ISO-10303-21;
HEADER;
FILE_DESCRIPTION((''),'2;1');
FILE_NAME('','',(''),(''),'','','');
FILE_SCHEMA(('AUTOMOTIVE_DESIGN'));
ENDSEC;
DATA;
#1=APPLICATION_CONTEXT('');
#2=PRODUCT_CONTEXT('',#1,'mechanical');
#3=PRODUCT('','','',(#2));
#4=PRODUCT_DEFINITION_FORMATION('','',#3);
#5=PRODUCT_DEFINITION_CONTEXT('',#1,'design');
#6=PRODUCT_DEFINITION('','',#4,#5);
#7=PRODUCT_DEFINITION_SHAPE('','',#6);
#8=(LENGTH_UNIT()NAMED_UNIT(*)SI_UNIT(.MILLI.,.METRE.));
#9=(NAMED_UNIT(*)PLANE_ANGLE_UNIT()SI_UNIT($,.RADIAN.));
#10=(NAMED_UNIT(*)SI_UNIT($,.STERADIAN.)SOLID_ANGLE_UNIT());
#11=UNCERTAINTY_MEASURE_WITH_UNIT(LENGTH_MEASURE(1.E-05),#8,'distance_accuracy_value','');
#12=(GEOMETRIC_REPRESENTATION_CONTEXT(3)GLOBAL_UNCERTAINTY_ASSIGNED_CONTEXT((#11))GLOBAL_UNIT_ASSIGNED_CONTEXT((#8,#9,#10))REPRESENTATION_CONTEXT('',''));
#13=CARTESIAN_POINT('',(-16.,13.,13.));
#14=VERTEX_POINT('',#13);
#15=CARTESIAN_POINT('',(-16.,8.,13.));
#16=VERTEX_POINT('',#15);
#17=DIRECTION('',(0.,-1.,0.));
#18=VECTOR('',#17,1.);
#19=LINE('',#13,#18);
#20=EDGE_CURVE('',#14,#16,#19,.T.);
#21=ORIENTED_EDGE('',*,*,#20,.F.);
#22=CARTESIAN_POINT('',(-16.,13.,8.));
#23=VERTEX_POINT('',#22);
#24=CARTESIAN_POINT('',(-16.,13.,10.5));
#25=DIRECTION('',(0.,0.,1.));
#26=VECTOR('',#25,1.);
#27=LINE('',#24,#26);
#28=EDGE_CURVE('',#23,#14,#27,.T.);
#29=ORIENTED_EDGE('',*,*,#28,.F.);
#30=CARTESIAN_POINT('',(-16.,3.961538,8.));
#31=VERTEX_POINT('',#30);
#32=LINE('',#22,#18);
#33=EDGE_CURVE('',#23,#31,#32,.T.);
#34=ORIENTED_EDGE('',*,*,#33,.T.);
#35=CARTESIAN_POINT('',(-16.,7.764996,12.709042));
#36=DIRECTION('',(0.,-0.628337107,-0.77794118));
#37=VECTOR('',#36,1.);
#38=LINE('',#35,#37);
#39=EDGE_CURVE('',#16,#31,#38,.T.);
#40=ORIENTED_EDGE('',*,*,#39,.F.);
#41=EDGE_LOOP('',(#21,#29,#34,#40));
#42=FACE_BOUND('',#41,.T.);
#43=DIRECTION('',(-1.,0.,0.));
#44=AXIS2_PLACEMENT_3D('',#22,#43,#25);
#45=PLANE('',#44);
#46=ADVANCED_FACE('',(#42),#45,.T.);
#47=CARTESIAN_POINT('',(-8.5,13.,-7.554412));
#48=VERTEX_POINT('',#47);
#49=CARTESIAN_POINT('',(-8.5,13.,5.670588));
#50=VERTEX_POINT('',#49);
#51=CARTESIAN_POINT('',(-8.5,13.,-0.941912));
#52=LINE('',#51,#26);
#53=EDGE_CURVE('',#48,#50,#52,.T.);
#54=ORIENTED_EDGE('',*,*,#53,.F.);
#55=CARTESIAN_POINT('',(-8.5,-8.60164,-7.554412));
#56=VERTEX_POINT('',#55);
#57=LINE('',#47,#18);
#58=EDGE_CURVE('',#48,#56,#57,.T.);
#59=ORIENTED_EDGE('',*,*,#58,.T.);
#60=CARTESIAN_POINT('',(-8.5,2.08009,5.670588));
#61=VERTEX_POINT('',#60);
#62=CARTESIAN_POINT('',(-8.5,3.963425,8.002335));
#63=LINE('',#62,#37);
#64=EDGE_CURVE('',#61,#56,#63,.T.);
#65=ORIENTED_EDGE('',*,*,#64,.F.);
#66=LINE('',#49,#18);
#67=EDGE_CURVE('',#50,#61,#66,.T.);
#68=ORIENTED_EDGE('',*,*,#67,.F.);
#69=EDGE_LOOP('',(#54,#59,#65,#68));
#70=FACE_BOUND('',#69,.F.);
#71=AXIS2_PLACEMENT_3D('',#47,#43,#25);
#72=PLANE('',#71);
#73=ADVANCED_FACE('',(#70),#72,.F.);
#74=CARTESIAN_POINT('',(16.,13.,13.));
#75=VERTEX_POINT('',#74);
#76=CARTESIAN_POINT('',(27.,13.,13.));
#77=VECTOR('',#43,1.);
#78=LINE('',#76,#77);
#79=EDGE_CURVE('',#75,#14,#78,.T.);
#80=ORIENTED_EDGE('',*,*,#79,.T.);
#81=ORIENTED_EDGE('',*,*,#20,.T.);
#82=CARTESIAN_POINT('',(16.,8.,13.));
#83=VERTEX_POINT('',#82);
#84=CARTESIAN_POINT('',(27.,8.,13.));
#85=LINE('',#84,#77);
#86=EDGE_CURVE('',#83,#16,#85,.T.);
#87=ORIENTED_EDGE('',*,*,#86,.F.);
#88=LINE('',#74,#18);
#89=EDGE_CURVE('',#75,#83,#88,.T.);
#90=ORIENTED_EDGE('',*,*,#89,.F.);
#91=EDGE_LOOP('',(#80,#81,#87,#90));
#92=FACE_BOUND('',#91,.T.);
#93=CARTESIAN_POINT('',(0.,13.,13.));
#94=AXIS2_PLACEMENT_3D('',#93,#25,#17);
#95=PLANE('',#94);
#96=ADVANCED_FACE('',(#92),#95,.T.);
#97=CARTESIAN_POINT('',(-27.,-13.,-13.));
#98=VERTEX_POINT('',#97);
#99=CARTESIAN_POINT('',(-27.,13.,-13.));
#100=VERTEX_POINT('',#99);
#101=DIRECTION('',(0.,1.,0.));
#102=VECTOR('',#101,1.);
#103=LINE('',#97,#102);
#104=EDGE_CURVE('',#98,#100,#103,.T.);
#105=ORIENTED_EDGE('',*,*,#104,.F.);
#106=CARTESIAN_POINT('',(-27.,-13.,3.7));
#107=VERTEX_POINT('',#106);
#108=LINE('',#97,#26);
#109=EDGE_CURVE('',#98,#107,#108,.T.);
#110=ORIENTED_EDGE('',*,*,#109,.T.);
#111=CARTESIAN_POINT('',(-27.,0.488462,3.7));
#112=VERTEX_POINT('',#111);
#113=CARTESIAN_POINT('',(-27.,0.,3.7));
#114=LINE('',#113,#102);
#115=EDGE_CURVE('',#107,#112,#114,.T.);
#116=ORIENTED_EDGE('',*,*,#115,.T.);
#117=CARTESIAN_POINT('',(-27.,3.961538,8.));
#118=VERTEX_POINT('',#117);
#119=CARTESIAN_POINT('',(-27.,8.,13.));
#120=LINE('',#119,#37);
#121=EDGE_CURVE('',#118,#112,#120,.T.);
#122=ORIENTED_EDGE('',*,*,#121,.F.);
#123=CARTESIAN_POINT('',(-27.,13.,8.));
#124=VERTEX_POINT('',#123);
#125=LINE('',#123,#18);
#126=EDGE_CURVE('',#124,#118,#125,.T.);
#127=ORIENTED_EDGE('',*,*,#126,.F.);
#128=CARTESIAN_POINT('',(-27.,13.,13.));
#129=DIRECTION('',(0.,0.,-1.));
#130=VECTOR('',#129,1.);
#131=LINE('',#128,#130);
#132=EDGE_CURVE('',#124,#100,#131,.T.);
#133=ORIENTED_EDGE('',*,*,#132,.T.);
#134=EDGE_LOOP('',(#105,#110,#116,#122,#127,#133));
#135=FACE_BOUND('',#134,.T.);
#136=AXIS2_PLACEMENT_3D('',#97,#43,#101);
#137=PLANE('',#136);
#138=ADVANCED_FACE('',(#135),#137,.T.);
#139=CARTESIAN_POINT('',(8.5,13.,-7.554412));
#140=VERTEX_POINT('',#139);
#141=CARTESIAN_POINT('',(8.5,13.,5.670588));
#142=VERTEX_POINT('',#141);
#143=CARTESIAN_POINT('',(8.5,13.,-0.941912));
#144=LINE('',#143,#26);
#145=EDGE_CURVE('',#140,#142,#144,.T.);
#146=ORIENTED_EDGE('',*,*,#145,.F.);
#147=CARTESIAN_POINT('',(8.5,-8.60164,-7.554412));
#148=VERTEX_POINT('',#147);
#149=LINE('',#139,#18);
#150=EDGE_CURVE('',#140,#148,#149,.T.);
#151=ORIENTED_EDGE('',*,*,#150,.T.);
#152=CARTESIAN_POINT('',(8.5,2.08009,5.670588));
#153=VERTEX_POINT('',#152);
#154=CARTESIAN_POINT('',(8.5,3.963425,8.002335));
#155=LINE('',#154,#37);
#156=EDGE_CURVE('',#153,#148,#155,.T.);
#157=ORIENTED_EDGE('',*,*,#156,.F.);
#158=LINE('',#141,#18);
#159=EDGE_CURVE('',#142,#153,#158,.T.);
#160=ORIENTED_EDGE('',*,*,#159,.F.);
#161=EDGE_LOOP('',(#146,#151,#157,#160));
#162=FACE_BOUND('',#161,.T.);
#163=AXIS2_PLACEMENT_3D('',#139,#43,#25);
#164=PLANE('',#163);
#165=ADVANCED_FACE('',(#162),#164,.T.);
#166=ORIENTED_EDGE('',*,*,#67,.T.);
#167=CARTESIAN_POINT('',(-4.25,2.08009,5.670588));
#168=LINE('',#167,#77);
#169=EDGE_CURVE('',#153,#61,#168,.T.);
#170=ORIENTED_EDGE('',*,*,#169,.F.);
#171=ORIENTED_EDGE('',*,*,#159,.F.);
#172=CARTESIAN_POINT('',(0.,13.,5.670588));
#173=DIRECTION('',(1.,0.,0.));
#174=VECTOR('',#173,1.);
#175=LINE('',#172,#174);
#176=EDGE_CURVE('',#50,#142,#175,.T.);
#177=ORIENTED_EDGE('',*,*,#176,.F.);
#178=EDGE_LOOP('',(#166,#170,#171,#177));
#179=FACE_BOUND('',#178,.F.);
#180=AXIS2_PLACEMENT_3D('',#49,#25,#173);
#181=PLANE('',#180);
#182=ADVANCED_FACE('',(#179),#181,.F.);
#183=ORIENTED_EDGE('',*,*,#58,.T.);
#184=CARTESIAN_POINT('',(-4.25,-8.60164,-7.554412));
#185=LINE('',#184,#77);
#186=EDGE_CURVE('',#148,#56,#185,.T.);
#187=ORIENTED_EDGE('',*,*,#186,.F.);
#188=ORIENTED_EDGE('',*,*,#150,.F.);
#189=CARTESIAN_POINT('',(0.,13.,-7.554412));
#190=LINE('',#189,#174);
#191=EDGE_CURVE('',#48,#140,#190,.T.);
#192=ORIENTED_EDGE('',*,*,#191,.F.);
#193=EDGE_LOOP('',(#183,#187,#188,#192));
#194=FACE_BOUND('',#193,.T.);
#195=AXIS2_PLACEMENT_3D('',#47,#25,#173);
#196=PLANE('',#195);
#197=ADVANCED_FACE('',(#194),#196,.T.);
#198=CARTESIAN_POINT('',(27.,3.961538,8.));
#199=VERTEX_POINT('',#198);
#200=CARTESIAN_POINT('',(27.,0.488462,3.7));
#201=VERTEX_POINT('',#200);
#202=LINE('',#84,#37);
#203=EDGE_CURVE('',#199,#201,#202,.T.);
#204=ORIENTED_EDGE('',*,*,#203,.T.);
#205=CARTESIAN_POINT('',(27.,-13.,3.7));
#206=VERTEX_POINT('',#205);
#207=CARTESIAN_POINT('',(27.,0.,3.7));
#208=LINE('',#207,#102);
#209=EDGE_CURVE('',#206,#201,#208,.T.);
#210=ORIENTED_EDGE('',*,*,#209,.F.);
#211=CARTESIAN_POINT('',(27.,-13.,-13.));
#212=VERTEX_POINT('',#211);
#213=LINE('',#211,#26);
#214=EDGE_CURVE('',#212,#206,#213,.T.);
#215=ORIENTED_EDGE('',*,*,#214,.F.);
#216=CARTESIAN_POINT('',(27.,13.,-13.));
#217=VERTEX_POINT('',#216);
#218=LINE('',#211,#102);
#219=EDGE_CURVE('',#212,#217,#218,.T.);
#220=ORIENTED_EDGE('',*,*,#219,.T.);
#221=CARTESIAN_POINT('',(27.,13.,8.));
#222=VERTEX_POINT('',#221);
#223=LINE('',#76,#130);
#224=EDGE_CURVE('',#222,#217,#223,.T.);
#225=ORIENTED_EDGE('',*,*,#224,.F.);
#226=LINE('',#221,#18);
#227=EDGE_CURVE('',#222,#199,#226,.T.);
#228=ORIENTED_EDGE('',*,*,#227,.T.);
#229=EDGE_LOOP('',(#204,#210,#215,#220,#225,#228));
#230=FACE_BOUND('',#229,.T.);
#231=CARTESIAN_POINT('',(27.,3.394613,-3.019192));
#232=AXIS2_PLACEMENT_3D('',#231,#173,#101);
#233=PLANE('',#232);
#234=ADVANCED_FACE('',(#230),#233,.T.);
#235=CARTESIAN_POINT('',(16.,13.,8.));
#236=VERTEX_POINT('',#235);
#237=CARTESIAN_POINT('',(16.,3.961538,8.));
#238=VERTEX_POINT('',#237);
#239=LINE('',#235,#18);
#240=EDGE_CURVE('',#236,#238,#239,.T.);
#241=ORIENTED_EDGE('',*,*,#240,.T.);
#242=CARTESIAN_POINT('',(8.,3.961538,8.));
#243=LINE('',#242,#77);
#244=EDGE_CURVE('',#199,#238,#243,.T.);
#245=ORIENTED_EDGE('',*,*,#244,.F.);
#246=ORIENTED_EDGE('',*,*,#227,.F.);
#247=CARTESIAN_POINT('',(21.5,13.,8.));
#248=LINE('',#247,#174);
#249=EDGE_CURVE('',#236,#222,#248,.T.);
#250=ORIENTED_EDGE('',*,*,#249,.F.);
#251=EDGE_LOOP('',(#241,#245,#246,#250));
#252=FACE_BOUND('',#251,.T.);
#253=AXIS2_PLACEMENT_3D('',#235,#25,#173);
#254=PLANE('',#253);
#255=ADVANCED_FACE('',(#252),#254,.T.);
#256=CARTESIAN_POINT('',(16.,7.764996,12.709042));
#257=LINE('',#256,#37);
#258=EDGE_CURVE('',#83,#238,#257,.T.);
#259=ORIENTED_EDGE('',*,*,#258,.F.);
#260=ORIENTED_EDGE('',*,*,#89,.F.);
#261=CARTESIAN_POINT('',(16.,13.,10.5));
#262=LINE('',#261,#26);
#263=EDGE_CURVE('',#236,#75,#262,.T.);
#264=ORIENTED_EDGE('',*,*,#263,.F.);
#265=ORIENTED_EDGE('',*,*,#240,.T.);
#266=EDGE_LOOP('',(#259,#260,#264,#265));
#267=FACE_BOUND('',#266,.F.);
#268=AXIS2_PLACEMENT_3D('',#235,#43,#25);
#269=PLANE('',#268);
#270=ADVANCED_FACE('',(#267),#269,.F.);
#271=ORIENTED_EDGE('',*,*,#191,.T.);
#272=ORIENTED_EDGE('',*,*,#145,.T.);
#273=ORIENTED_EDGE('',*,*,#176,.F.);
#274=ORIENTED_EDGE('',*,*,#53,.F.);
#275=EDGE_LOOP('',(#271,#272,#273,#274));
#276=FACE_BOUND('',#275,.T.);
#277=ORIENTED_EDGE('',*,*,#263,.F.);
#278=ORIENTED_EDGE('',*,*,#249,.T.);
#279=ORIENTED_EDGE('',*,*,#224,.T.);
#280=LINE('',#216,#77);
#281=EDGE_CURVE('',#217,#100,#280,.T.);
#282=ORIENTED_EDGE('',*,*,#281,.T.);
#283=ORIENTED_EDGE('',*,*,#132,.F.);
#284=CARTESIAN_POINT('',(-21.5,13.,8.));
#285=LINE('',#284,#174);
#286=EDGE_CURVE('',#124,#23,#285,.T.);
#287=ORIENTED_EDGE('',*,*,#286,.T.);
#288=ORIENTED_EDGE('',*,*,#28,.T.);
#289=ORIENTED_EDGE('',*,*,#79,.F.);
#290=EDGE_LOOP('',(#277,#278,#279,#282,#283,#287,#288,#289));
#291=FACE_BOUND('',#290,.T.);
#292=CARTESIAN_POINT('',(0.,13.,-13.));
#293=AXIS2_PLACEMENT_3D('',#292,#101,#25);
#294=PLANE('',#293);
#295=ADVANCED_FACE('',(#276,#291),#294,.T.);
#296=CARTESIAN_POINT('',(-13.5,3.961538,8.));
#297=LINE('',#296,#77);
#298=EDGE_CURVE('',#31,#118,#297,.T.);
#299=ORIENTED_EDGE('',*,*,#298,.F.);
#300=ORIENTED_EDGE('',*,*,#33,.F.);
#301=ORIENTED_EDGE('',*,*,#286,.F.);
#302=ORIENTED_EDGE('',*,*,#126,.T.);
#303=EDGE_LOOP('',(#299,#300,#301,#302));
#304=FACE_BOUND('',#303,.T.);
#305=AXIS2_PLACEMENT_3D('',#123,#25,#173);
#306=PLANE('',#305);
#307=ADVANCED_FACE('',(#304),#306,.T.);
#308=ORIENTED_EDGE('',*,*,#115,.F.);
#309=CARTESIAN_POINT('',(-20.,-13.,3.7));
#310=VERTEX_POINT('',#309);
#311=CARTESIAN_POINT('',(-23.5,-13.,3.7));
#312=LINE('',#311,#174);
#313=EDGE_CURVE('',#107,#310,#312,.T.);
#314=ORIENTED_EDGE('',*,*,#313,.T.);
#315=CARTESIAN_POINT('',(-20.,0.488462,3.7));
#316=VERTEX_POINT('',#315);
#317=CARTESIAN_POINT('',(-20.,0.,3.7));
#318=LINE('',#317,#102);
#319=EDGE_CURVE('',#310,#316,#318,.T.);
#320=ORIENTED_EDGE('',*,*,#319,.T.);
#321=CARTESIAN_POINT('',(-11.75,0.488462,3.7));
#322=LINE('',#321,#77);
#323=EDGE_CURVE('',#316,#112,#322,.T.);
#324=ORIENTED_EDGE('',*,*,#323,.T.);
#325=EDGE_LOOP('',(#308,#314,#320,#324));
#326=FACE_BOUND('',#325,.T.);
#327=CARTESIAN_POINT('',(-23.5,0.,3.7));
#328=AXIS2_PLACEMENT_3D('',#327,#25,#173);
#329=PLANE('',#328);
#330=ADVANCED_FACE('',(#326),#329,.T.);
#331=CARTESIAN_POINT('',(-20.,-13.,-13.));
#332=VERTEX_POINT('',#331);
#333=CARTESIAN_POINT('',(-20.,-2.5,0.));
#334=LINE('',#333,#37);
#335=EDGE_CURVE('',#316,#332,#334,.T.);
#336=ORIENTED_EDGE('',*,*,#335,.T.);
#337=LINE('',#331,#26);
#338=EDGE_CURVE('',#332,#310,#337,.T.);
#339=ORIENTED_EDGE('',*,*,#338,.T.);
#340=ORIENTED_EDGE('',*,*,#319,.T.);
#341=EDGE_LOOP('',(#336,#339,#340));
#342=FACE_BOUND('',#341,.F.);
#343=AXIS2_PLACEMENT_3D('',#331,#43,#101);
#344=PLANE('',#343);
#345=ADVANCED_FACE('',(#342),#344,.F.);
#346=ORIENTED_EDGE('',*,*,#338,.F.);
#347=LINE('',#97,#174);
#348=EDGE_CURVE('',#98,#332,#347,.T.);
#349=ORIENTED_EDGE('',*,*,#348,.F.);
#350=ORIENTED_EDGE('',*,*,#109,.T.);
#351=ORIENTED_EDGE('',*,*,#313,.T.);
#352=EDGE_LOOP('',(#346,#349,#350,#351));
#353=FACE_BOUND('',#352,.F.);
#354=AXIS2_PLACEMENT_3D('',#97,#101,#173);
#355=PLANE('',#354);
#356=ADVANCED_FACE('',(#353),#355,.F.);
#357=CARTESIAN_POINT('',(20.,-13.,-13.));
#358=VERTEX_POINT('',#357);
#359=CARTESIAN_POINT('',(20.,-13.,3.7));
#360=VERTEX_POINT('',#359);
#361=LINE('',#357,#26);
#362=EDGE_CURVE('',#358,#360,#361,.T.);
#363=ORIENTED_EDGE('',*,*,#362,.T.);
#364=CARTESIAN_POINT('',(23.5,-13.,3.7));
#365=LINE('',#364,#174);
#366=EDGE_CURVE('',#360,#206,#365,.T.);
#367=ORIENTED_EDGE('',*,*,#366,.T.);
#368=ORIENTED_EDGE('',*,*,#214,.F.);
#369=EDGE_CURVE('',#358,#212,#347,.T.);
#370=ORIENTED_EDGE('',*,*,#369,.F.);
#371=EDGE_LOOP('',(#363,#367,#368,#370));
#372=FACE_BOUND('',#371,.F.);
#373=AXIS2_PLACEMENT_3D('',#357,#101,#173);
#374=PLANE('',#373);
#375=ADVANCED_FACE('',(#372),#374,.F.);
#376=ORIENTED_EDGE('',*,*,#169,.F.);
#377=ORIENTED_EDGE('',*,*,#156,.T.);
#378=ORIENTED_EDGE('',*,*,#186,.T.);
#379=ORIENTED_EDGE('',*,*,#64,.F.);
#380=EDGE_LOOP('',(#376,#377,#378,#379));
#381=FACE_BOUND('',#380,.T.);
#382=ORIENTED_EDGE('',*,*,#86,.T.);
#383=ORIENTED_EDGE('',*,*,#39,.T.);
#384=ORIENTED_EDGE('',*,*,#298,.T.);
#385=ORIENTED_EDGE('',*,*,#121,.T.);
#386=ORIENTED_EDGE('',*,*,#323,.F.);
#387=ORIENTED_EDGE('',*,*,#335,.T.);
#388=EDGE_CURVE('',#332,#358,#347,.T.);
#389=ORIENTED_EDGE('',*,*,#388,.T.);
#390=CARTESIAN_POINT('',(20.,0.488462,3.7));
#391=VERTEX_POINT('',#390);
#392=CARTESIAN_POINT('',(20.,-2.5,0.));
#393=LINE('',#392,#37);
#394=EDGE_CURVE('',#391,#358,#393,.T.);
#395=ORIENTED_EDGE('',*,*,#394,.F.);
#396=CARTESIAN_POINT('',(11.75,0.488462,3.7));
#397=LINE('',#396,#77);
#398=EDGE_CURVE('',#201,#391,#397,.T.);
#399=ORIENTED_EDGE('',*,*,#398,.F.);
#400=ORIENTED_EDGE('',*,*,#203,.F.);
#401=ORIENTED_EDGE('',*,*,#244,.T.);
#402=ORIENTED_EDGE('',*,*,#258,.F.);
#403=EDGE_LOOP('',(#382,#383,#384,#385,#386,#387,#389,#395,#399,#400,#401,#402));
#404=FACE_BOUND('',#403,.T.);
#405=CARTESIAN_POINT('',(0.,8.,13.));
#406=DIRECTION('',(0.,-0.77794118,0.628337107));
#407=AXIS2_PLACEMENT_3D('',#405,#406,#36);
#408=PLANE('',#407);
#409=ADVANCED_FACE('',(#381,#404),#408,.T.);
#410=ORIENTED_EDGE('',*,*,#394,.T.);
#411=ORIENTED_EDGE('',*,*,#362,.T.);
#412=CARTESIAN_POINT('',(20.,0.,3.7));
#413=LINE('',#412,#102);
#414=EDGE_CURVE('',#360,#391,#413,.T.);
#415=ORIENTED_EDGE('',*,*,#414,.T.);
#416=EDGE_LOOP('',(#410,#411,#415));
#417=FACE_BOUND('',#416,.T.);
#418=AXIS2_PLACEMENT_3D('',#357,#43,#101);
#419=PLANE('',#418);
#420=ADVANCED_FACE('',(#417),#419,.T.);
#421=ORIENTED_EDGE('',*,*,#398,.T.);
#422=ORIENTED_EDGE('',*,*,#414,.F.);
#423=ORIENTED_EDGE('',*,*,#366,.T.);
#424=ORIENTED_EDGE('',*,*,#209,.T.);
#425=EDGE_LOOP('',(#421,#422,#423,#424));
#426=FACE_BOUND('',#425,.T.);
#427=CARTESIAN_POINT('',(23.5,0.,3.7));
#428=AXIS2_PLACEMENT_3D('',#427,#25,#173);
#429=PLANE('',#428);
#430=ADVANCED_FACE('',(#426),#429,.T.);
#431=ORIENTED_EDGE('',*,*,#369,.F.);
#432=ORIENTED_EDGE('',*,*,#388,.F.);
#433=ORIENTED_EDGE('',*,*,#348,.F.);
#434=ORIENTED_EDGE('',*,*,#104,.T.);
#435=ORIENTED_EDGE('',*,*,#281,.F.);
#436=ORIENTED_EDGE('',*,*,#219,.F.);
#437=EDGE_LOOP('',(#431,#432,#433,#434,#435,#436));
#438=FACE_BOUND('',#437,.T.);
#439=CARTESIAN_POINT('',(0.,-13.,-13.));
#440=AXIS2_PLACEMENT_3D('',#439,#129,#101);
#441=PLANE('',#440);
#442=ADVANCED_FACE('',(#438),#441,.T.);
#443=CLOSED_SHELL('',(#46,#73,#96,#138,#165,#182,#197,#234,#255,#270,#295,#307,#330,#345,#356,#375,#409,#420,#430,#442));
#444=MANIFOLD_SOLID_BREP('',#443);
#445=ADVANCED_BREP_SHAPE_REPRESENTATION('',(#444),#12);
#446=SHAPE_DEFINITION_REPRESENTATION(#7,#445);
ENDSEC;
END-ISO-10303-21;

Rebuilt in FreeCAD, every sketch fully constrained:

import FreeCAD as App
import Part
import Sketcher

V = App.Vector


def add_polygon(sketch, points):
    """Adds a closed chain of lines whose ends are joined by coincident constraints."""
    first, n = sketch.GeometryCount, len(points)
    for a, b in zip(points, points[1:] + points[:1]):
        sketch.addGeometry(Part.LineSegment(App.Vector(*a, 0), App.Vector(*b, 0)), False)
    for i in range(n):
        sketch.addConstraint(Sketcher.Constraint("Coincident", first + i, 2, first + (i + 1) % n, 1))

doc = App.newDocument("Part")
body = doc.addObject("PartDesign::Body", "Body")

# Sketch on YZ plane
sketch1 = body.newObject("Sketcher::SketchObject", "Sketch")
sketch1.AttachmentSupport = (doc.getObject("YZ_Plane"), [""])
sketch1.MapMode = "FlatFace"
add_polygon(sketch1, [(8, 13), (-13, -13), (13, -13), (13, 13)])  # lines 0-3
sketch1.addConstraint(Sketcher.Constraint("Horizontal", 1))
sketch1.addConstraint(Sketcher.Constraint("Vertical", 2))
sketch1.addConstraint(Sketcher.Constraint("Horizontal", 3))
sketch1.addConstraint(Sketcher.Constraint("Symmetric", 0, 2, 2, 2, -1, 1))
sketch1.addConstraint(Sketcher.Constraint("Equal", 1, 2))
sketch1.addConstraint(Sketcher.Constraint("DistanceX", 1, 1, 1, 2, 26.0))
sketch1.addConstraint(Sketcher.Constraint("DistanceX", 3, 2, 3, 1, 5.0))
pad1 = body.newObject("PartDesign::Pad", "Pad")
pad1.Profile = sketch1
pad1.Length = 54
pad1.Midplane = True

# Sketch on XY plane
sketch2 = body.newObject("Sketcher::SketchObject", "Sketch001")
sketch2.AttachmentSupport = (doc.getObject("XY_Plane"), [""])
sketch2.MapMode = "FlatFace"
sketch2.AttachmentOffset = App.Placement(V(0, 0, -13), App.Rotation())
add_polygon(sketch2, [(-27, 13), (-27, -13), (-20, -13), (-20, 13)])  # lines 0-3
add_polygon(sketch2, [(20, 13), (20, -13), (27, -13), (27, 13)])  # lines 4-7
sketch2.addConstraint(Sketcher.Constraint("Vertical", 0))
sketch2.addConstraint(Sketcher.Constraint("Horizontal", 1))
sketch2.addConstraint(Sketcher.Constraint("Vertical", 2))
sketch2.addConstraint(Sketcher.Constraint("Horizontal", 3))
sketch2.addConstraint(Sketcher.Constraint("Vertical", 4))
sketch2.addConstraint(Sketcher.Constraint("Horizontal", 5))
sketch2.addConstraint(Sketcher.Constraint("Vertical", 6))
sketch2.addConstraint(Sketcher.Constraint("Horizontal", 7))
sketch2.addConstraint(Sketcher.Constraint("Symmetric", 2, 2, 4, 2, -1, 1))
sketch2.addConstraint(Sketcher.Constraint("Symmetric", 0, 2, 6, 2, -1, 1))
sketch2.addConstraint(Sketcher.Constraint("Horizontal", 1, 2, 4, 2))
sketch2.addConstraint(Sketcher.Constraint("DistanceX", 1, 1, 1, 2, 7.0))
sketch2.addConstraint(Sketcher.Constraint("DistanceY", 0, 2, 0, 1, 26.0))
sketch2.addConstraint(Sketcher.Constraint("DistanceX", 0, 2, -1, 1, 27.0))
pad2 = body.newObject("PartDesign::Pad", "Pad001")
pad2.Profile = sketch2
pad2.Length = 16.7

# Sketch on XZ plane
sketch3 = body.newObject("Sketcher::SketchObject", "Sketch002")
sketch3.AttachmentSupport = (doc.getObject("XZ_Plane"), [""])
sketch3.MapMode = "FlatFace"
sketch3.AttachmentOffset = App.Placement(V(0, 0, -13), App.Rotation())
add_polygon(sketch3, [(-27, 13), (-27, 8), (-16, 8), (-16, 13)])  # lines 0-3
add_polygon(sketch3, [(16, 13), (16, 8), (27, 8), (27, 13)])  # lines 4-7
sketch3.addConstraint(Sketcher.Constraint("Vertical", 0))
sketch3.addConstraint(Sketcher.Constraint("Horizontal", 1))
sketch3.addConstraint(Sketcher.Constraint("Vertical", 2))
sketch3.addConstraint(Sketcher.Constraint("Horizontal", 3))
sketch3.addConstraint(Sketcher.Constraint("Vertical", 4))
sketch3.addConstraint(Sketcher.Constraint("Horizontal", 5))
sketch3.addConstraint(Sketcher.Constraint("Vertical", 6))
sketch3.addConstraint(Sketcher.Constraint("Horizontal", 7))
sketch3.addConstraint(Sketcher.Constraint("Symmetric", 1, 2, 4, 2, -2))
sketch3.addConstraint(Sketcher.Constraint("Symmetric", 3, 2, 6, 2, -2))
sketch3.addConstraint(Sketcher.Constraint("DistanceX", 1, 1, 1, 2, 11.0))
sketch3.addConstraint(Sketcher.Constraint("DistanceY", 0, 2, 0, 1, 5.0))
sketch3.addConstraint(Sketcher.Constraint("DistanceX", 0, 2, -1, 1, 27.0))
sketch3.addConstraint(Sketcher.Constraint("DistanceY", -1, 1, 0, 2, 8.0))
pocket1 = body.newObject("PartDesign::Pocket", "Pocket")
pocket1.Profile = sketch3
pocket1.Type = "ThroughAll"
pocket1.Reversed = True

# Sketch on XZ plane
sketch4 = body.newObject("Sketcher::SketchObject", "Sketch003")
sketch4.AttachmentSupport = (doc.getObject("XZ_Plane"), [""])
sketch4.MapMode = "FlatFace"
sketch4.AttachmentOffset = App.Placement(V(0, 0, -13), App.Rotation())
add_polygon(sketch4, [(-8.5, 5.670588), (-8.5, -7.554412), (8.5, -7.554412), (8.5, 5.670588)])  # lines 0-3
sketch4.addConstraint(Sketcher.Constraint("Vertical", 0))
sketch4.addConstraint(Sketcher.Constraint("Horizontal", 1))
sketch4.addConstraint(Sketcher.Constraint("Vertical", 2))
sketch4.addConstraint(Sketcher.Constraint("Horizontal", 3))
sketch4.addConstraint(Sketcher.Constraint("DistanceX", 1, 1, 1, 2, 17.0))
sketch4.addConstraint(Sketcher.Constraint("DistanceX", 0, 2, -1, 1, 8.5))
sketch4.addConstraint(Sketcher.Constraint("DistanceY", 0, 2, 0, 1, 13.225))
sketch4.addConstraint(Sketcher.Constraint("DistanceY", -1, 1, 2, 2, 5.670588))
pocket2 = body.newObject("PartDesign::Pocket", "Pocket001")
pocket2.Profile = sketch4
pocket2.Type = "ThroughAll"
pocket2.Reversed = True

doc.recompute()
